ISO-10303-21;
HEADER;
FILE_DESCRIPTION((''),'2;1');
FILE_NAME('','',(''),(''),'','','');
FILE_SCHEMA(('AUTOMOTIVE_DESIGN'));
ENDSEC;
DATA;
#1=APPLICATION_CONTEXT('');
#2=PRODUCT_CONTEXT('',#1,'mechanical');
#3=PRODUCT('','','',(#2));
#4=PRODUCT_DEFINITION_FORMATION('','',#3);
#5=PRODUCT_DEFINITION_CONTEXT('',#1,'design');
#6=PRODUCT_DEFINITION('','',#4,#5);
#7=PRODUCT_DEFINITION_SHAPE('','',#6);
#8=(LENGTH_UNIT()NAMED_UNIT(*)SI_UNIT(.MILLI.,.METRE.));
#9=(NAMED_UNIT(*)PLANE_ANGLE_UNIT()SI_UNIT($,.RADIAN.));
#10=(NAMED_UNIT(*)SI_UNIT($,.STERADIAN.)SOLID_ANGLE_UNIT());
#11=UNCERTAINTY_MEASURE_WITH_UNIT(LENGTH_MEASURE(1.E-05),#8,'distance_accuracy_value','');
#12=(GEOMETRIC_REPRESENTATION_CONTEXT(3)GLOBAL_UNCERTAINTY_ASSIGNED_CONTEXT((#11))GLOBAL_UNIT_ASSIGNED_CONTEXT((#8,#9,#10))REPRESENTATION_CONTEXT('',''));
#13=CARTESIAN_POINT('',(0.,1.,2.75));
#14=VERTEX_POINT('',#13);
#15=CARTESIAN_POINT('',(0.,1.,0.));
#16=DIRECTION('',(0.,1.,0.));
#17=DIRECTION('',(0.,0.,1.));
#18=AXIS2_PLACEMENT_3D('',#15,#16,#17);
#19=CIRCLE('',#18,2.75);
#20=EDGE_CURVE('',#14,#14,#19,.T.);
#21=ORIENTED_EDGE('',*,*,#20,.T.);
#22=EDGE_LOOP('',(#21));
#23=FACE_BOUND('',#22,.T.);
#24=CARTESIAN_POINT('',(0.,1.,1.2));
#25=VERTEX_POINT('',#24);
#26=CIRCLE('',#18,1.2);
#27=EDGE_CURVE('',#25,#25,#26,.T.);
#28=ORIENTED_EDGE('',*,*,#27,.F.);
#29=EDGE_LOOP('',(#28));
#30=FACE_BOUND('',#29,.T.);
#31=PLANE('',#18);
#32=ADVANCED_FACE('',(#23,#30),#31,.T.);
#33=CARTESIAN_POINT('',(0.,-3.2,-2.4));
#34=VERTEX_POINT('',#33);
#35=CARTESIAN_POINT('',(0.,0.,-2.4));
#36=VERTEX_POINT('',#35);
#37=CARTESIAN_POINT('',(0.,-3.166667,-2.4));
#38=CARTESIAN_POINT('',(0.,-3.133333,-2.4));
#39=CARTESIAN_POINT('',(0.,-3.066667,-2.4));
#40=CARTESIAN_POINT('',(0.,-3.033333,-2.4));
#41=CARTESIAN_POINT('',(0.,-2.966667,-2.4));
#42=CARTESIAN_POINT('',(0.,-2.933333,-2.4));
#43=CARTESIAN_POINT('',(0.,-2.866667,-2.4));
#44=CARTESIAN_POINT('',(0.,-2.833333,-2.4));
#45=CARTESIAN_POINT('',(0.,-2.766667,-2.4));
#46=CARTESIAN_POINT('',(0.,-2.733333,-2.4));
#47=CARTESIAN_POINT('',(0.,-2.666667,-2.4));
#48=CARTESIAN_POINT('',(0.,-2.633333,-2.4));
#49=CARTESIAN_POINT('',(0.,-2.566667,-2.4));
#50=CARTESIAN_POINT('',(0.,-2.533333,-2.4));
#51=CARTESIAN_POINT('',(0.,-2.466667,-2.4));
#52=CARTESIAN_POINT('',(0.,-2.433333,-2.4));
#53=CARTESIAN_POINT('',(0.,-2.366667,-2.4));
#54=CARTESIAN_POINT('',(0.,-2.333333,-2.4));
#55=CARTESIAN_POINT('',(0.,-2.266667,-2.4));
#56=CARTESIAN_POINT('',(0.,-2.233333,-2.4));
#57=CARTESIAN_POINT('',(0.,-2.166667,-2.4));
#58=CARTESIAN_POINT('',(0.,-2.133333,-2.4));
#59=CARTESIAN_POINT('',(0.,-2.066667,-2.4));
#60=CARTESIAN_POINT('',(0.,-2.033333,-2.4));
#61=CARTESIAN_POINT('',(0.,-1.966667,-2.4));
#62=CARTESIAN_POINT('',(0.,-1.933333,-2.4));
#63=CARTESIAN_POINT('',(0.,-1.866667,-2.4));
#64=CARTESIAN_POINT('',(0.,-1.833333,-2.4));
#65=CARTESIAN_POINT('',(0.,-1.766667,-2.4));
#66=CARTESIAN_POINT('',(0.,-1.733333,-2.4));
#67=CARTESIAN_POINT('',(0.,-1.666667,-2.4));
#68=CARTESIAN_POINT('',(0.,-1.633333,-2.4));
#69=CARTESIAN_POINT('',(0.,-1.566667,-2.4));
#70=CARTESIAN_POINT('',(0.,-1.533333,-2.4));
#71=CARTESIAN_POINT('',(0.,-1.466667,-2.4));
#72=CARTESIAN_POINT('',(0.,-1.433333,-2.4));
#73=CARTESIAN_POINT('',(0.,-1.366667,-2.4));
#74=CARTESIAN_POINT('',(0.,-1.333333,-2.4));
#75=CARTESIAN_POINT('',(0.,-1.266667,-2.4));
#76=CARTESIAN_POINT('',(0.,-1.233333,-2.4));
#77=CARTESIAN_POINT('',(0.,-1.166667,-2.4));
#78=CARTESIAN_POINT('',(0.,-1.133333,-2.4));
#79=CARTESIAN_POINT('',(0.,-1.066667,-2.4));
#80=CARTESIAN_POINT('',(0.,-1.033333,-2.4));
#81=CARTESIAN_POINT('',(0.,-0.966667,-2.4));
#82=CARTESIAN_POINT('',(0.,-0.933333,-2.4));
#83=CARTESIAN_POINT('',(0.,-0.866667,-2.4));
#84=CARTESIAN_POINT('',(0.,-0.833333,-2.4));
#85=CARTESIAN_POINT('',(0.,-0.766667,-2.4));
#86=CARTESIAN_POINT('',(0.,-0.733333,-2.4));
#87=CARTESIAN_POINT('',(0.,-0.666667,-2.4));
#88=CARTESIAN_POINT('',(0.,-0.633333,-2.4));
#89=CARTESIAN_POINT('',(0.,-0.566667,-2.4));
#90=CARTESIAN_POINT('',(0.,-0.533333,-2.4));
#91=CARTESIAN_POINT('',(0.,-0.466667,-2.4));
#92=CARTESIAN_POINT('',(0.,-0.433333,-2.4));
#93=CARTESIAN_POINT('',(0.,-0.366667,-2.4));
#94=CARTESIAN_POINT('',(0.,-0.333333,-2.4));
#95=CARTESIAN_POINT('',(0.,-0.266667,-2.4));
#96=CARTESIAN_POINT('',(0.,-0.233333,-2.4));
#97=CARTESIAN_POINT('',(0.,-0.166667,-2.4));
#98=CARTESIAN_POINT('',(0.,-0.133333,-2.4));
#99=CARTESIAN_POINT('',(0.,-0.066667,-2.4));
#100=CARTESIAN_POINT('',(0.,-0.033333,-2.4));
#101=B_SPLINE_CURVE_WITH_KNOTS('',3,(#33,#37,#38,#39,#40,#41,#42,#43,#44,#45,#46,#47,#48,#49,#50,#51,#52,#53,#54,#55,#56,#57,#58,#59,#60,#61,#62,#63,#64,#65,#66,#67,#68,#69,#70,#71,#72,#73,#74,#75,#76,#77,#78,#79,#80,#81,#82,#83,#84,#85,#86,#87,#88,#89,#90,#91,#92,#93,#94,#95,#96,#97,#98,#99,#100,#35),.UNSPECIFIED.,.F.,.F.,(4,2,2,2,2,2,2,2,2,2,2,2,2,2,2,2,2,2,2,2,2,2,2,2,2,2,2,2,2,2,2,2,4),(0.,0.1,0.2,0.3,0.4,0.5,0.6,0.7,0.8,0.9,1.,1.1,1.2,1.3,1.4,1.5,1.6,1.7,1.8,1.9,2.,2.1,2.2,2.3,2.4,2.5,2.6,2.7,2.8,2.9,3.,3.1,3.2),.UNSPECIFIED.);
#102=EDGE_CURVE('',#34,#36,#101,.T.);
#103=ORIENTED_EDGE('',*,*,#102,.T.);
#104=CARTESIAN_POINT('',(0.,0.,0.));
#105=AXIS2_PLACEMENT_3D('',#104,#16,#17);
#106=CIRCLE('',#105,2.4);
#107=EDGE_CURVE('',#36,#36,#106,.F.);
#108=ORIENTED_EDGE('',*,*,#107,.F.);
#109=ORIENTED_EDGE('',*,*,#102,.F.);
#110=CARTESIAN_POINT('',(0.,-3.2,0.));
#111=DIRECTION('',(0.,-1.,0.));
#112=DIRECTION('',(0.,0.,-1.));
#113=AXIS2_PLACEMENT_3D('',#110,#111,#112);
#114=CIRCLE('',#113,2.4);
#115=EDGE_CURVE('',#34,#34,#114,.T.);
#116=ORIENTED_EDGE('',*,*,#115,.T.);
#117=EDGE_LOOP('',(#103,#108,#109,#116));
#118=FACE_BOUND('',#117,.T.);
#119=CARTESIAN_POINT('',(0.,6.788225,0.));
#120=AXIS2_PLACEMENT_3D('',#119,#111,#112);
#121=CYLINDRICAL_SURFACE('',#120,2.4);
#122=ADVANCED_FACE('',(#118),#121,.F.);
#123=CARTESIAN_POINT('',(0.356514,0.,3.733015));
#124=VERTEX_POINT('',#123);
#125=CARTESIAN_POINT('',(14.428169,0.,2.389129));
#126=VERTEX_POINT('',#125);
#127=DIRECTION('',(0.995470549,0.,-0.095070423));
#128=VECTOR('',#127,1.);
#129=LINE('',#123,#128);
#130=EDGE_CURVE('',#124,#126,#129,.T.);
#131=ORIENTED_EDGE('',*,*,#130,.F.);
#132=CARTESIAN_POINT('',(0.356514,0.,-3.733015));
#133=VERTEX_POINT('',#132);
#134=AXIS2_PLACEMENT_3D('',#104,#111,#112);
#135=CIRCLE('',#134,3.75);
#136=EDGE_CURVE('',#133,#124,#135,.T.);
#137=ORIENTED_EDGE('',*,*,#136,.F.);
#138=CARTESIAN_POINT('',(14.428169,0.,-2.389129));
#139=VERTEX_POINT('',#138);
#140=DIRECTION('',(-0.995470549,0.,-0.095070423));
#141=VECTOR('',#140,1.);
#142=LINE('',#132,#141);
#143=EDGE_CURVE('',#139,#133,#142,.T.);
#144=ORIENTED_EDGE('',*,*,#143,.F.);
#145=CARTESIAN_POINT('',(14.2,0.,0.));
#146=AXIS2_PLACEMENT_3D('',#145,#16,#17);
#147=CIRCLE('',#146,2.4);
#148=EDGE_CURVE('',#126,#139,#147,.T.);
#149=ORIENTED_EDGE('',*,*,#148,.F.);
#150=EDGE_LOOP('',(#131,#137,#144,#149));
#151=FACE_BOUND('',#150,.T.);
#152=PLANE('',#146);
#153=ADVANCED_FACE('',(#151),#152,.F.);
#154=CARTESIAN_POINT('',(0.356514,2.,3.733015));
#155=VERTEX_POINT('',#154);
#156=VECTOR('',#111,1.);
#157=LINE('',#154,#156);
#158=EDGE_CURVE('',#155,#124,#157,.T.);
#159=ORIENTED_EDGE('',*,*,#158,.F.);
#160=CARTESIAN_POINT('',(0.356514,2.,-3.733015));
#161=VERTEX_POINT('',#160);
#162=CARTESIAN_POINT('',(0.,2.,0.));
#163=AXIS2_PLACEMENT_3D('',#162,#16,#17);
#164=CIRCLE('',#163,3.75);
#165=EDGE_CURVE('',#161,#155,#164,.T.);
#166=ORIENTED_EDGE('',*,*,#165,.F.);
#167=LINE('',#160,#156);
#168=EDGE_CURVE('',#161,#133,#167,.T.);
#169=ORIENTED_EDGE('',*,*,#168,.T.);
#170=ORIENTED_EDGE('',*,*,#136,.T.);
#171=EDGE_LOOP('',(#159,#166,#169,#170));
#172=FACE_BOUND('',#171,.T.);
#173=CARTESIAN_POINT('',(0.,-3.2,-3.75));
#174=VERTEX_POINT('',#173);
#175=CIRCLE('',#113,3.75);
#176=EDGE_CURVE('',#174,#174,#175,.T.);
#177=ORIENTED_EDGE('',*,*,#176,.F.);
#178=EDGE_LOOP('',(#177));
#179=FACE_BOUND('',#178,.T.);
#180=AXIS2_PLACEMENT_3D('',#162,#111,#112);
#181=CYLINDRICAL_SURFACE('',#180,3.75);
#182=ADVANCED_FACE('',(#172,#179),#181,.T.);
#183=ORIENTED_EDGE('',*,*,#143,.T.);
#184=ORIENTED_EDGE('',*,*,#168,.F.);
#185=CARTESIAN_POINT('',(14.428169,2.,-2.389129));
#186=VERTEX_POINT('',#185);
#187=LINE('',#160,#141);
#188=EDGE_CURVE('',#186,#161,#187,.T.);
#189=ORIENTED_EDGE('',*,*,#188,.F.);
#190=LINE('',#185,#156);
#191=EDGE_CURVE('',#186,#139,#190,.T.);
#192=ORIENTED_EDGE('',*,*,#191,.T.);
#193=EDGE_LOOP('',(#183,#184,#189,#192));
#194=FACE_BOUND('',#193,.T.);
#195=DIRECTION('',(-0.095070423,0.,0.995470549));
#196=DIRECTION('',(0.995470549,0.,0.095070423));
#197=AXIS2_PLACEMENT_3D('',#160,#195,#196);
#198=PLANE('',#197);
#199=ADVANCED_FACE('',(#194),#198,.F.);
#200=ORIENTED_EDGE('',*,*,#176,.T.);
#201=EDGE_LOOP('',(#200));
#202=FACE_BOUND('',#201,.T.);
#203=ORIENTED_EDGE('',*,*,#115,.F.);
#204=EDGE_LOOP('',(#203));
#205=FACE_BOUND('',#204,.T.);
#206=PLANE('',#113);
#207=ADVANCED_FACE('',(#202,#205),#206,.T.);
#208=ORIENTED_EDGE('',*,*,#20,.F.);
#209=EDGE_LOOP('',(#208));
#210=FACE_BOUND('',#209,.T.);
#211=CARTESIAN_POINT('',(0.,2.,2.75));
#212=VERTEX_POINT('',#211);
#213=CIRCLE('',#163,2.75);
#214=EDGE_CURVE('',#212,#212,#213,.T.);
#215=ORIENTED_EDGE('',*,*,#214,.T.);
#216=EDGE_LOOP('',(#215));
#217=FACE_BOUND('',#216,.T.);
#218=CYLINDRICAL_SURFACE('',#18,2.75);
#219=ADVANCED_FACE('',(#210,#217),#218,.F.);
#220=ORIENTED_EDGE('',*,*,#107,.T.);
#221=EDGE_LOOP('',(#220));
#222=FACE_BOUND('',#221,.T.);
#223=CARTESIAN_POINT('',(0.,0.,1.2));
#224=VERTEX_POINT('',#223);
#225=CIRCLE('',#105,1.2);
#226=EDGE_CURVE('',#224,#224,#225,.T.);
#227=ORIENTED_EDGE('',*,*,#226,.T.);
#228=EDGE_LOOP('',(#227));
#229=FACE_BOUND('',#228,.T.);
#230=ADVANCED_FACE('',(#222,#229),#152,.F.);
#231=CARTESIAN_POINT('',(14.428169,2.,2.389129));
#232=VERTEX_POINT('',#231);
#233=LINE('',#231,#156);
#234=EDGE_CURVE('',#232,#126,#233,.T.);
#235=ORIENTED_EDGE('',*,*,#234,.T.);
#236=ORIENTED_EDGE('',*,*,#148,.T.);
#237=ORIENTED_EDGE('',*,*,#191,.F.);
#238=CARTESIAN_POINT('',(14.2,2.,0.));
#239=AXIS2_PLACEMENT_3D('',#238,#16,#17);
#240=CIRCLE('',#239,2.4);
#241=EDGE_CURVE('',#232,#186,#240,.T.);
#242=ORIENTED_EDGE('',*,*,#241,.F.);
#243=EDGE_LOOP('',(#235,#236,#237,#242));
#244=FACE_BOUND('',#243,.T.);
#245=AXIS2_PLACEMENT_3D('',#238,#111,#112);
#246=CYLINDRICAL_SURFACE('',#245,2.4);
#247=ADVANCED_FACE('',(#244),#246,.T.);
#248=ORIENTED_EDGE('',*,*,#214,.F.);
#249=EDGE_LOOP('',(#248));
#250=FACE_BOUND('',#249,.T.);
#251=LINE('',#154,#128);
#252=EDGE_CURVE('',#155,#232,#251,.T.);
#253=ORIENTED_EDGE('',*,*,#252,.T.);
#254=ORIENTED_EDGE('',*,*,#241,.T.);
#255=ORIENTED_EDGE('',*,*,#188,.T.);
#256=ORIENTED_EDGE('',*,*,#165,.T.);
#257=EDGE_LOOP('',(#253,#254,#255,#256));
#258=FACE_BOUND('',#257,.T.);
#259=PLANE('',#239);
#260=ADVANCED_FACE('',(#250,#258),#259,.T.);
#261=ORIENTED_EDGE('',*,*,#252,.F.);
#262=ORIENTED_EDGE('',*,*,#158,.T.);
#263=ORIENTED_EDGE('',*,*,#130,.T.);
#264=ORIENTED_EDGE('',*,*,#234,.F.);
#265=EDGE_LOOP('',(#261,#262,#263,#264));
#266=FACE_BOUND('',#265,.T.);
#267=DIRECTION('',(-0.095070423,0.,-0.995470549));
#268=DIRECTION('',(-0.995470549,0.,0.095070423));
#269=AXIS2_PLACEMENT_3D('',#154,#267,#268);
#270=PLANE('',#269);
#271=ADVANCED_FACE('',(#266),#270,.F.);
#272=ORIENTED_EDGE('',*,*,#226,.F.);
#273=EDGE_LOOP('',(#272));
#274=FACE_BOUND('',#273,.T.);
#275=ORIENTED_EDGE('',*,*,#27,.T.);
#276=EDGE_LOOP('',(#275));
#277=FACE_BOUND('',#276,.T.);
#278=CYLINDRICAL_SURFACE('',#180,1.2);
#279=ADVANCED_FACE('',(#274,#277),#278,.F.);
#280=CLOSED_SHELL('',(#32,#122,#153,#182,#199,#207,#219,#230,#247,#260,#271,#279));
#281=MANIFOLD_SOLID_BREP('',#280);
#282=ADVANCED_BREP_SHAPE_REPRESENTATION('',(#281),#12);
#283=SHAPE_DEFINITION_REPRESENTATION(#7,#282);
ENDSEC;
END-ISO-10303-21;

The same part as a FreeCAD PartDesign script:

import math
import FreeCAD as App
import Part
import Sketcher
from FreeCAD import Vector
Q = App.Units.Quantity

doc = App.newDocument("Part")
body = doc.addObject("PartDesign::Body", "Body")

# Sketch on XZ plane
sketch1 = body.newObject("Sketcher::SketchObject", "Sketch")
sketch1.AttachmentSupport = (doc.getObject("XZ_Plane"), [""])
sketch1.MapMode = "FlatFace"
sketch1.addGeometry(Part.LineSegment(Vector(14.4, -2.4, 0), Vector(0.4, -3.7, 0)), False)
sketch1.addGeometry(Part.ArcOfCircle(Part.Circle(Vector(0, 0, 0), Vector(0, 0, 1), 3.8), math.radians(85), math.radians(275)), False)
sketch1.addGeometry(Part.LineSegment(Vector(0.4, 3.7, 0), Vector(14.4, 2.4, 0)), False)
sketch1.addGeometry(Part.ArcOfCircle(Part.Circle(Vector(14.2, 0, 0), Vector(0, 0, 1), 2.4), math.radians(-85), math.radians(85)), False)
sketch1.addGeometry(Part.Circle(Vector(0, 0, 0), Vector(0, 0, 1), 1.2), False)
sketch1.addConstraint(Sketcher.Constraint("Tangent", 0, 2, 1, 2))
sketch1.addConstraint(Sketcher.Constraint("Tangent", 1, 1, 2, 1))
sketch1.addConstraint(Sketcher.Constraint("Tangent", 2, 2, 3, 2))
sketch1.addConstraint(Sketcher.Constraint("Tangent", 3, 1, 0, 1))
sketch1.addConstraint(Sketcher.Constraint("Coincident", 1, 3, -1, 1))
sketch1.addConstraint(Sketcher.Constraint("Coincident", 4, 3, -1, 1))
sketch1.addConstraint(Sketcher.Constraint("PointOnObject", 3, 3, -1))
sketch1.addConstraint(Sketcher.Constraint("Diameter", 4, Q("2.4 mm")))
sketch1.addConstraint(Sketcher.Constraint("Radius", 3, Q("2.4 mm")))
sketch1.addConstraint(Sketcher.Constraint("Radius", 1, Q("3.75 mm")))
sketch1.addConstraint(Sketcher.Constraint("DistanceX", -1, 1, 3, 3, Q("14.2 mm")))
pad1 = body.newObject("PartDesign::Pad", "Pad")
pad1.Profile = sketch1
pad1.Length = 2
pad1.Reversed = True

# Sketch on XZ plane
sketch2 = body.newObject("Sketcher::SketchObject", "Sketch001")
sketch2.AttachmentSupport = (doc.getObject("XZ_Plane"), [""])
sketch2.MapMode = "FlatFace"
sketch2.AttachmentOffset = App.Placement(Vector(0, 0, 3.2), App.Rotation())
sketch2.addGeometry(Part.ArcOfCircle(Part.Circle(Vector(0, 0, 0), Vector(0, 0, 1), 3.7), math.radians(0), math.radians(85)), False)
sketch2.addGeometry(Part.ArcOfCircle(Part.Circle(Vector(0, 0, 0), Vector(0, 0, 1), 3.8), math.radians(85), math.radians(275)), False)
sketch2.addGeometry(Part.ArcOfCircle(Part.Circle(Vector(0, 0, 0), Vector(0, 0, 1), 3.7), math.radians(-85), math.radians(0)), False)
sketch2.addGeometry(Part.Circle(Vector(0, 0, 0), Vector(0, 0, 1), 1.2), False)
sketch2.addConstraint(Sketcher.Constraint("Tangent", 0, 2, 1, 1))
sketch2.addConstraint(Sketcher.Constraint("Tangent", 1, 2, 2, 1))
sketch2.addConstraint(Sketcher.Constraint("Tangent", 2, 2, 0, 1))
sketch2.addConstraint(Sketcher.Constraint("Coincident", 0, 3, -1, 1))
sketch2.addConstraint(Sketcher.Constraint("Coincident", 3, 3, -1, 1))
sketch2.addConstraint(Sketcher.Constraint("PointOnObject", 2, 2, -1))
sketch2.addConstraint(Sketcher.Constraint("Vertical", 0, 2, 1, 2))
sketch2.addConstraint(Sketcher.Constraint("Diameter", 3, Q("2.4 mm")))
sketch2.addConstraint(Sketcher.Constraint("Radius", 0, Q("3.75 mm")))
sketch2.addConstraint(Sketcher.Constraint("DistanceY", 1, 2, 0, 2, Q("7.466029 mm")))
pad2 = body.newObject("PartDesign::Pad", "Pad001")
pad2.Profile = sketch2
pad2.Length = 3.2
pad2.Reversed = True

# Sketch on XZ plane
sketch3 = body.newObject("Sketcher::SketchObject", "Sketch002")
sketch3.AttachmentSupport = (doc.getObject("XZ_Plane"), [""])
sketch3.MapMode = "FlatFace"
sketch3.AttachmentOffset = App.Placement(Vector(0, 0, 3.2), App.Rotation())
sketch3.addGeometry(Part.Circle(Vector(0, 0, 0), Vector(0, 0, 1), 2.4), False)
sketch3.addConstraint(Sketcher.Constraint("Coincident", 0, 3, -1, 1))
sketch3.addConstraint(Sketcher.Constraint("Diameter", 0, Q("4.8 mm")))
pocket1 = body.newObject("PartDesign::Pocket", "Pocket")
pocket1.Profile = sketch3
pocket1.Length = 3.2

# Sketch on XZ plane
sketch4 = body.newObject("Sketcher::SketchObject", "Sketch003")
sketch4.AttachmentSupport = (doc.getObject("XZ_Plane"), [""])
sketch4.MapMode = "FlatFace"
sketch4.AttachmentOffset = App.Placement(Vector(0, 0, -2), App.Rotation())
sketch4.addGeometry(Part.Circle(Vector(0, 0, 0), Vector(0, 0, 1), 2.8), False)
sketch4.addConstraint(Sketcher.Constraint("Coincident", 0, 3, -1, 1))
sketch4.addConstraint(Sketcher.Constraint("Diameter", 0, Q("5.5 mm")))
pocket2 = body.newObject("PartDesign::Pocket", "Pocket001")
pocket2.Profile = sketch4
pocket2.Length = 1
pocket2.Reversed = True

doc.recompute()
